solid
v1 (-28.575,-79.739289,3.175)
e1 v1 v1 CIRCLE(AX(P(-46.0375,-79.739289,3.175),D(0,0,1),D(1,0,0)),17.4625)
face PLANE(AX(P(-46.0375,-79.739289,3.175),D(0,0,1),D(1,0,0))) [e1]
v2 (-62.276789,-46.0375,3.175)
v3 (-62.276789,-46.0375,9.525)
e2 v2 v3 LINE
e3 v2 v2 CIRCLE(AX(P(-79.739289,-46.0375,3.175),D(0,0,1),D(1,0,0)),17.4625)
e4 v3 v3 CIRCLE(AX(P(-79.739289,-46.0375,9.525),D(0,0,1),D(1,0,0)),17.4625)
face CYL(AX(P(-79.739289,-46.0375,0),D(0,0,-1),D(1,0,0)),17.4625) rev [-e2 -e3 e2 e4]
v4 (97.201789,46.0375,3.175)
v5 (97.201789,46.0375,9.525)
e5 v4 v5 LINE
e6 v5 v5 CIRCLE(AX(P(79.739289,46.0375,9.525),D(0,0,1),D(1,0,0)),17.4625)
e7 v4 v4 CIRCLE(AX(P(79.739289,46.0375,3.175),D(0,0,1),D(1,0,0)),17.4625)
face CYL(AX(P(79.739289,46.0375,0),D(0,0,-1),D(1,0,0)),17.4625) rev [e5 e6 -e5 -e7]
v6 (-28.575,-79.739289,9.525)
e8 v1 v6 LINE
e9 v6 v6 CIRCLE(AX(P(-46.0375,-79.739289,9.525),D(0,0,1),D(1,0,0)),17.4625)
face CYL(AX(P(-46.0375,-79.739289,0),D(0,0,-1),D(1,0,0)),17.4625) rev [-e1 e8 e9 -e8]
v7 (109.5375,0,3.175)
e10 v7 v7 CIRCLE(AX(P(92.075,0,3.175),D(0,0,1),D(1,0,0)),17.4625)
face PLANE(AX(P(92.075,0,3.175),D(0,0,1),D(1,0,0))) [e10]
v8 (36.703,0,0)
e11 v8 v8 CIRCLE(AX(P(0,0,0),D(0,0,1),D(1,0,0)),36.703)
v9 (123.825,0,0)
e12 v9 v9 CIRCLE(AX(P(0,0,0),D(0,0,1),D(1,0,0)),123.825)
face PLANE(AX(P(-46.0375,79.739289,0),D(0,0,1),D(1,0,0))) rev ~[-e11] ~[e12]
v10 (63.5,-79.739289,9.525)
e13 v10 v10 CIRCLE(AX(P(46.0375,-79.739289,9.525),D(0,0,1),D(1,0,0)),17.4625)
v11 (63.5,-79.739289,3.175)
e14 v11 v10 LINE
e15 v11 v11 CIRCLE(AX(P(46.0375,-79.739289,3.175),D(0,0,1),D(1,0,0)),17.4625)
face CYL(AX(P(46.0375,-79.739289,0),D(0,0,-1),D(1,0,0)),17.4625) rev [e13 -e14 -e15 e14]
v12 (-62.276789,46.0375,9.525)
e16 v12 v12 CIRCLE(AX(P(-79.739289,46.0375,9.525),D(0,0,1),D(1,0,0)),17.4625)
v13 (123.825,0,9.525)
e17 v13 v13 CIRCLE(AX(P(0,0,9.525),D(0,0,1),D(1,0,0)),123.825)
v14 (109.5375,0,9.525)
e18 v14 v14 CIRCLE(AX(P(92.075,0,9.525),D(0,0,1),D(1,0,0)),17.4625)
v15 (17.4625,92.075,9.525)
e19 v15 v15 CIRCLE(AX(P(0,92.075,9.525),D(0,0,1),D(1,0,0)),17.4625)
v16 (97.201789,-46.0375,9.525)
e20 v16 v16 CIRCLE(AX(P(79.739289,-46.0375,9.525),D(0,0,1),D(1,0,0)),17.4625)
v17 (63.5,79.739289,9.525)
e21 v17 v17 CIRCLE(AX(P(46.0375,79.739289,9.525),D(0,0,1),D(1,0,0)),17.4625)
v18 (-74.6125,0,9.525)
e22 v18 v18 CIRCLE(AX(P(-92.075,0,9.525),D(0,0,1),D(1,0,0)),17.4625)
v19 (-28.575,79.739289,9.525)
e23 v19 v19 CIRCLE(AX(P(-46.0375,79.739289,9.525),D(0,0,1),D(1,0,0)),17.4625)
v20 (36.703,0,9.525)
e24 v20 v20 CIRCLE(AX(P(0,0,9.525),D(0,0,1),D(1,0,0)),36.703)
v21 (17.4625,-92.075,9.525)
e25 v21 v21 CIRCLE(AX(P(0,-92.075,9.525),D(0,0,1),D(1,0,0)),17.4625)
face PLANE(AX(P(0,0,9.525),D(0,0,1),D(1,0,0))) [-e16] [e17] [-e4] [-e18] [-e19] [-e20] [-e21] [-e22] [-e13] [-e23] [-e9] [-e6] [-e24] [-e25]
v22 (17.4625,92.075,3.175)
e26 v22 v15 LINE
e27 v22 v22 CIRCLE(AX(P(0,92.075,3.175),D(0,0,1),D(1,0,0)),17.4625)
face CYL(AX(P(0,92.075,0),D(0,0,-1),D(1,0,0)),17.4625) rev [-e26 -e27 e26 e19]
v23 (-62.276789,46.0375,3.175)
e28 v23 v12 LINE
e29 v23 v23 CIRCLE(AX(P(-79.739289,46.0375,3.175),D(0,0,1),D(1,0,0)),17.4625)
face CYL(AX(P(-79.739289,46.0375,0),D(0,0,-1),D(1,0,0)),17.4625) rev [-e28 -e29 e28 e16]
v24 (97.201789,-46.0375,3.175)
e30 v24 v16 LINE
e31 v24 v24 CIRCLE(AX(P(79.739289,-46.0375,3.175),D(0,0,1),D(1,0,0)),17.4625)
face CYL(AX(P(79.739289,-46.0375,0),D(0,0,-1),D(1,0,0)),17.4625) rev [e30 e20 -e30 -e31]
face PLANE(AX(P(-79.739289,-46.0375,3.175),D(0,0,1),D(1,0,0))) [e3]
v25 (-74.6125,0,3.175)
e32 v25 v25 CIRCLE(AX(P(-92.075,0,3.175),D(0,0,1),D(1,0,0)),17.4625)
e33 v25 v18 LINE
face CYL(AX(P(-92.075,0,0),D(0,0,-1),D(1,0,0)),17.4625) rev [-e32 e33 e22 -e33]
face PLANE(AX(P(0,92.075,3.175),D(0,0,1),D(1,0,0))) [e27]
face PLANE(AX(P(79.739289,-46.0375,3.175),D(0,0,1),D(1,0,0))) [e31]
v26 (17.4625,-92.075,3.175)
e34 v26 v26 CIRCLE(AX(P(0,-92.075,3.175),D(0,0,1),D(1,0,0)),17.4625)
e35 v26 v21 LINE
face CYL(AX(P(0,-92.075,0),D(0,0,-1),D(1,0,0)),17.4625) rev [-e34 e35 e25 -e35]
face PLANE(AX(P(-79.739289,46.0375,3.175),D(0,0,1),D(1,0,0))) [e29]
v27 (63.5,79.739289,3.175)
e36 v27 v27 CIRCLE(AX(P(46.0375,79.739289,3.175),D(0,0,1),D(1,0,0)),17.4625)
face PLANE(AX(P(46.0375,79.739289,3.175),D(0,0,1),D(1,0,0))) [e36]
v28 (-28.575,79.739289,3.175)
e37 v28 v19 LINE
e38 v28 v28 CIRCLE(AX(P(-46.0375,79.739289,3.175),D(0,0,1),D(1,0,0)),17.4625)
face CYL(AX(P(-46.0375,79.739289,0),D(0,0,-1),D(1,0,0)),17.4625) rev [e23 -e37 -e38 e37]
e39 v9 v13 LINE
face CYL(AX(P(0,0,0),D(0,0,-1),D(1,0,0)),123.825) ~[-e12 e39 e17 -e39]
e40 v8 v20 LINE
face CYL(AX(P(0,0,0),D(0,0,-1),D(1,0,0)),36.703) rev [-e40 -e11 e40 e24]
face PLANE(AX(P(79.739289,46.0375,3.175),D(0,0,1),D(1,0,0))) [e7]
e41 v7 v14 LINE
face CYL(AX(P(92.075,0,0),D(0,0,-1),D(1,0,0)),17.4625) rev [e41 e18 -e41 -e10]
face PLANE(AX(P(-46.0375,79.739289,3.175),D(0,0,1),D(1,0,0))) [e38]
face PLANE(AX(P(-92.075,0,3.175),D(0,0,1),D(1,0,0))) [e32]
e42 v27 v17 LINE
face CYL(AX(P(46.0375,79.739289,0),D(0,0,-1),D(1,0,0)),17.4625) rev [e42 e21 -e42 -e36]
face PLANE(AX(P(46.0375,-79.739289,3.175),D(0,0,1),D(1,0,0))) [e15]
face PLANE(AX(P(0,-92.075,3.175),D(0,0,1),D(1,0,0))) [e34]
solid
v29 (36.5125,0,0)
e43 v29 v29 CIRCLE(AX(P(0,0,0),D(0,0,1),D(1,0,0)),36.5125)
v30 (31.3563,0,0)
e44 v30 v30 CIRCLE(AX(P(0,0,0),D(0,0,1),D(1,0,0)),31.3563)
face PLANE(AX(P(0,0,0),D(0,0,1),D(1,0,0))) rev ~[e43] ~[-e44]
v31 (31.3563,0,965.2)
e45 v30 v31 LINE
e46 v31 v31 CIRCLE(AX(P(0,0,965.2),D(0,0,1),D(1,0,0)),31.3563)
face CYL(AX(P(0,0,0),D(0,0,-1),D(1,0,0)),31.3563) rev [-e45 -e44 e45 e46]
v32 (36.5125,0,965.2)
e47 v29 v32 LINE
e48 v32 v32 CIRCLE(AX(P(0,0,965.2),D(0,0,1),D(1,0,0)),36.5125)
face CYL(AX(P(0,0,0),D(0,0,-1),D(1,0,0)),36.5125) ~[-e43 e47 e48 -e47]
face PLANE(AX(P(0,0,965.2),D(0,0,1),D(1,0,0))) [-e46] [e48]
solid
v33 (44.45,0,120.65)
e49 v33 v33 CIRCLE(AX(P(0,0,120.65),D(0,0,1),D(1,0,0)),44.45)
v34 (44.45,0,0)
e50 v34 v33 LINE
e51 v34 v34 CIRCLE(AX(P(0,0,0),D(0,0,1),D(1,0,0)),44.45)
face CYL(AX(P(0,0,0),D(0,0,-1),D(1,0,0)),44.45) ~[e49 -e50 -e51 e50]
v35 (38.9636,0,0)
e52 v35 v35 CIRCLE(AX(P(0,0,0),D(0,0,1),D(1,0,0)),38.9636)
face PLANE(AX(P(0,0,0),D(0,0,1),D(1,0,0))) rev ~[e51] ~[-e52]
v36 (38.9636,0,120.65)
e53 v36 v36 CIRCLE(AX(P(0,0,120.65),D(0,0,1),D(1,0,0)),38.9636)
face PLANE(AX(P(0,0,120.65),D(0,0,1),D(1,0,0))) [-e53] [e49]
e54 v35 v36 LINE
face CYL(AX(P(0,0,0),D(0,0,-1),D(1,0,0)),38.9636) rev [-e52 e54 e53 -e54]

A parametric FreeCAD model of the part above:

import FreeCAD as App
import Part
import Sketcher
from FreeCAD import Vector
Q = App.Units.Quantity

doc = App.newDocument("Part")
body = doc.addObject("PartDesign::Body", "Body")

# Sketch on XY plane
sketch1 = doc.addObject("Sketcher::SketchObject", "Sketch")
body.addObject(sketch1)
sketch1.AttachmentSupport = (doc.XY_Plane, [""])
sketch1.MapMode = "FlatFace"
sketch1.addGeometry([
    Part.Circle(Vector(0, 0, 0), Vector(0, 0, 1), 124),  # 0
    Part.Circle(Vector(-46, -80, 0), Vector(0, 0, 1), 17),  # 1
    Part.Circle(Vector(-80, -46, 0), Vector(0, 0, 1), 17),  # 2
    Part.Circle(Vector(0, -92, 0), Vector(0, 0, 1), 17),  # 3
    Part.Circle(Vector(46, -80, 0), Vector(0, 0, 1), 17),  # 4
    Part.Circle(Vector(80, -46, 0), Vector(0, 0, 1), 17),  # 5
    Part.Circle(Vector(-92, 0, 0), Vector(0, 0, 1), 17),  # 6
    Part.Circle(Vector(-80, 46, 0), Vector(0, 0, 1), 17),  # 7
    Part.Circle(Vector(-46, 80, 0), Vector(0, 0, 1), 17),  # 8
    Part.Circle(Vector(0, 0, 0), Vector(0, 0, 1), 37),  # 9
    Part.Circle(Vector(92, 0, 0), Vector(0, 0, 1), 17),  # 10
    Part.Circle(Vector(80, 46, 0), Vector(0, 0, 1), 17),  # 11
    Part.Circle(Vector(46, 80, 0), Vector(0, 0, 1), 17),  # 12
    Part.Circle(Vector(0, 92, 0), Vector(0, 0, 1), 17),  # 13
], False)
sketch1.addConstraint([
    Sketcher.Constraint("Coincident", 0, 3, -1, 1),
    Sketcher.Constraint("Coincident", 9, 3, -1, 1),
    Sketcher.Constraint("Equal", 1, 2),
    Sketcher.Constraint("Equal", 2, 3),
    Sketcher.Constraint("Equal", 3, 4),
    Sketcher.Constraint("Equal", 4, 5),
    Sketcher.Constraint("Equal", 5, 6),
    Sketcher.Constraint("Equal", 6, 7),
    Sketcher.Constraint("Equal", 7, 8),
    Sketcher.Constraint("Equal", 8, 10),
    Sketcher.Constraint("Equal", 10, 11),
    Sketcher.Constraint("Equal", 11, 12),
    Sketcher.Constraint("Equal", 12, 13),
    Sketcher.Constraint("Symmetric", 5, 3, 7, 3, -1, 1),
    Sketcher.Constraint("Symmetric", 4, 3, 8, 3, -1, 1),
    Sketcher.Constraint("Symmetric", 6, 3, 10, 3, -1, 1),
    Sketcher.Constraint("Symmetric", 2, 3, 11, 3, -1, 1),
    Sketcher.Constraint("Symmetric", 1, 3, 12, 3, -1, 1),
    Sketcher.Constraint("Symmetric", 3, 3, 13, 3, -1, 1),
    Sketcher.Constraint("Symmetric", 1, 3, 4, 3, -2),
    Sketcher.Constraint("Symmetric", 2, 3, 5, 3, -2),
    Sketcher.Constraint("PointOnObject", 3, 3, -2),
    Sketcher.Constraint("PointOnObject", 6, 3, -1),
    Sketcher.Constraint("Diameter", 0, Q("9.75 in")),
    Sketcher.Constraint("Diameter", 9, Q("2.89 in")),
    Sketcher.Constraint("Diameter", 1, Q("1.375 in")),
    Sketcher.Constraint("DistanceX", 1, 3, -1, 1, Q("1.8125 in")),
    Sketcher.Constraint("DistanceY", 2, 3, -1, 1, Q("1.8125 in")),
    Sketcher.Constraint("DistanceY", 3, 3, -1, 1, Q("3.625 in")),
    Sketcher.Constraint("DistanceX", 6, 3, -1, 1, Q("3.625 in")),
    Sketcher.Constraint("DistanceY", 1, 3, -1, 1, Q("79.739289 mm")),
    Sketcher.Constraint("DistanceX", 2, 3, -1, 1, Q("79.739289 mm")),
])
pad1 = doc.addObject("PartDesign::Pad", "Pad")
body.addObject(pad1)
pad1.Profile = sketch1
pad1.Length = Q("0.375 in")

# Sketch on XY plane
sketch2 = doc.addObject("Sketcher::SketchObject", "Sketch001")
body.addObject(sketch2)
sketch2.AttachmentSupport = (doc.XY_Plane, [""])
sketch2.MapMode = "FlatFace"
sketch2.addGeometry([
    Part.Circle(Vector(-46, 80, 0), Vector(0, 0, 1), 17),  # 0
    Part.Circle(Vector(0, 92, 0), Vector(0, 0, 1), 17),  # 1
    Part.Circle(Vector(46, 80, 0), Vector(0, 0, 1), 17),  # 2
    Part.Circle(Vector(92, 0, 0), Vector(0, 0, 1), 17),  # 3
    Part.Circle(Vector(80, 46, 0), Vector(0, 0, 1), 17),  # 4
    Part.Circle(Vector(80, -46, 0), Vector(0, 0, 1), 17),  # 5
    Part.Circle(Vector(46, -80, 0), Vector(0, 0, 1), 17),  # 6
    Part.Circle(Vector(0, -92, 0), Vector(0, 0, 1), 17),  # 7
    Part.Circle(Vector(-46, -80, 0), Vector(0, 0, 1), 17),  # 8
    Part.Circle(Vector(-80, -46, 0), Vector(0, 0, 1), 17),  # 9
    Part.Circle(Vector(-92, 0, 0), Vector(0, 0, 1), 17),  # 10
    Part.Circle(Vector(-80, 46, 0), Vector(0, 0, 1), 17),  # 11
], False)
sketch2.addConstraint([
    Sketcher.Constraint("Equal", 0, 1),
    Sketcher.Constraint("Equal", 1, 2),
    Sketcher.Constraint("Equal", 2, 3),
    Sketcher.Constraint("Equal", 3, 4),
    Sketcher.Constraint("Equal", 4, 5),
    Sketcher.Constraint("Equal", 5, 6),
    Sketcher.Constraint("Equal", 6, 7),
    Sketcher.Constraint("Equal", 7, 8),
    Sketcher.Constraint("Equal", 8, 9),
    Sketcher.Constraint("Equal", 9, 10),
    Sketcher.Constraint("Equal", 10, 11),
    Sketcher.Constraint("Symmetric", 0, 3, 6, 3, -1, 1),
    Sketcher.Constraint("Symmetric", 1, 3, 7, 3, -1, 1),
    Sketcher.Constraint("Symmetric", 2, 3, 8, 3, -1, 1),
    Sketcher.Constraint("Symmetric", 4, 3, 9, 3, -1, 1),
    Sketcher.Constraint("Symmetric", 3, 3, 10, 3, -1, 1),
    Sketcher.Constraint("Symmetric", 5, 3, 11, 3, -1, 1),
    Sketcher.Constraint("Symmetric", 0, 3, 2, 3, -2),
    Sketcher.Constraint("Symmetric", 5, 3, 9, 3, -2),
    Sketcher.Constraint("PointOnObject", 1, 3, -2),
    Sketcher.Constraint("PointOnObject", 3, 3, -1),
    Sketcher.Constraint("Diameter", 0, Q("1.375 in")),
    Sketcher.Constraint("DistanceX", 0, 3, -1, 1, Q("1.8125 in")),
    Sketcher.Constraint("DistanceY", -1, 1, 1, 3, Q("3.625 in")),
    Sketcher.Constraint("DistanceX", -1, 1, 3, 3, Q("3.625 in")),
    Sketcher.Constraint("DistanceY", -1, 1, 4, 3, Q("1.8125 in")),
    Sketcher.Constraint("DistanceY", -1, 1, 0, 3, Q("79.739289 mm")),
    Sketcher.Constraint("DistanceX", -1, 1, 4, 3, Q("79.739289 mm")),
])
pad2 = doc.addObject("PartDesign::Pad", "Pad001")
body.addObject(pad2)
pad2.Profile = sketch2
pad2.Length = Q("0.125 in")
body2 = doc.addObject("PartDesign::Body", "Body001")

# Sketch on XY plane
sketch3 = doc.addObject("Sketcher::SketchObject", "Sketch002")
body2.addObject(sketch3)
sketch3.AttachmentSupport = (doc.getObject("XY_Plane001"), [""])
sketch3.MapMode = "FlatFace"
sketch3.addGeometry([
    Part.Circle(Vector(0, 0, 0), Vector(0, 0, 1), 37),
    Part.Circle(Vector(0, 0, 0), Vector(0, 0, 1), 31),
], False)
sketch3.addConstraint([
    Sketcher.Constraint("Coincident", 0, 3, -1, 1),
    Sketcher.Constraint("Coincident", 1, 3, -1, 1),
    Sketcher.Constraint("Diameter", 0, Q("2.875 in")),
    Sketcher.Constraint("Diameter", 1, Q("2.469 in")),
])
pad3 = doc.addObject("PartDesign::Pad", "Pad002")
body2.addObject(pad3)
pad3.Profile = sketch3
pad3.Length = Q("38 in")
body3 = doc.addObject("PartDesign::Body", "Body002")

# Sketch on XY plane
sketch4 = doc.addObject("Sketcher::SketchObject", "Sketch003")
body3.addObject(sketch4)
sketch4.AttachmentSupport = (doc.getObject("XY_Plane002"), [""])
sketch4.MapMode = "FlatFace"
sketch4.addGeometry([
    Part.Circle(Vector(0, 0, 0), Vector(0, 0, 1), 44),
    Part.Circle(Vector(0, 0, 0), Vector(0, 0, 1), 39),
], False)
sketch4.addConstraint([
    Sketcher.Constraint("Coincident", 0, 3, -1, 1),
    Sketcher.Constraint("Coincident", 1, 3, -1, 1),
    Sketcher.Constraint("Diameter", 0, Q("3.5 in")),
    Sketcher.Constraint("Diameter", 1, Q("3.068 in")),
])
pad4 = doc.addObject("PartDesign::Pad", "Pad003")
body3.addObject(pad4)
pad4.Profile = sketch4
pad4.Length = Q("4.75 in")

doc.recompute()
